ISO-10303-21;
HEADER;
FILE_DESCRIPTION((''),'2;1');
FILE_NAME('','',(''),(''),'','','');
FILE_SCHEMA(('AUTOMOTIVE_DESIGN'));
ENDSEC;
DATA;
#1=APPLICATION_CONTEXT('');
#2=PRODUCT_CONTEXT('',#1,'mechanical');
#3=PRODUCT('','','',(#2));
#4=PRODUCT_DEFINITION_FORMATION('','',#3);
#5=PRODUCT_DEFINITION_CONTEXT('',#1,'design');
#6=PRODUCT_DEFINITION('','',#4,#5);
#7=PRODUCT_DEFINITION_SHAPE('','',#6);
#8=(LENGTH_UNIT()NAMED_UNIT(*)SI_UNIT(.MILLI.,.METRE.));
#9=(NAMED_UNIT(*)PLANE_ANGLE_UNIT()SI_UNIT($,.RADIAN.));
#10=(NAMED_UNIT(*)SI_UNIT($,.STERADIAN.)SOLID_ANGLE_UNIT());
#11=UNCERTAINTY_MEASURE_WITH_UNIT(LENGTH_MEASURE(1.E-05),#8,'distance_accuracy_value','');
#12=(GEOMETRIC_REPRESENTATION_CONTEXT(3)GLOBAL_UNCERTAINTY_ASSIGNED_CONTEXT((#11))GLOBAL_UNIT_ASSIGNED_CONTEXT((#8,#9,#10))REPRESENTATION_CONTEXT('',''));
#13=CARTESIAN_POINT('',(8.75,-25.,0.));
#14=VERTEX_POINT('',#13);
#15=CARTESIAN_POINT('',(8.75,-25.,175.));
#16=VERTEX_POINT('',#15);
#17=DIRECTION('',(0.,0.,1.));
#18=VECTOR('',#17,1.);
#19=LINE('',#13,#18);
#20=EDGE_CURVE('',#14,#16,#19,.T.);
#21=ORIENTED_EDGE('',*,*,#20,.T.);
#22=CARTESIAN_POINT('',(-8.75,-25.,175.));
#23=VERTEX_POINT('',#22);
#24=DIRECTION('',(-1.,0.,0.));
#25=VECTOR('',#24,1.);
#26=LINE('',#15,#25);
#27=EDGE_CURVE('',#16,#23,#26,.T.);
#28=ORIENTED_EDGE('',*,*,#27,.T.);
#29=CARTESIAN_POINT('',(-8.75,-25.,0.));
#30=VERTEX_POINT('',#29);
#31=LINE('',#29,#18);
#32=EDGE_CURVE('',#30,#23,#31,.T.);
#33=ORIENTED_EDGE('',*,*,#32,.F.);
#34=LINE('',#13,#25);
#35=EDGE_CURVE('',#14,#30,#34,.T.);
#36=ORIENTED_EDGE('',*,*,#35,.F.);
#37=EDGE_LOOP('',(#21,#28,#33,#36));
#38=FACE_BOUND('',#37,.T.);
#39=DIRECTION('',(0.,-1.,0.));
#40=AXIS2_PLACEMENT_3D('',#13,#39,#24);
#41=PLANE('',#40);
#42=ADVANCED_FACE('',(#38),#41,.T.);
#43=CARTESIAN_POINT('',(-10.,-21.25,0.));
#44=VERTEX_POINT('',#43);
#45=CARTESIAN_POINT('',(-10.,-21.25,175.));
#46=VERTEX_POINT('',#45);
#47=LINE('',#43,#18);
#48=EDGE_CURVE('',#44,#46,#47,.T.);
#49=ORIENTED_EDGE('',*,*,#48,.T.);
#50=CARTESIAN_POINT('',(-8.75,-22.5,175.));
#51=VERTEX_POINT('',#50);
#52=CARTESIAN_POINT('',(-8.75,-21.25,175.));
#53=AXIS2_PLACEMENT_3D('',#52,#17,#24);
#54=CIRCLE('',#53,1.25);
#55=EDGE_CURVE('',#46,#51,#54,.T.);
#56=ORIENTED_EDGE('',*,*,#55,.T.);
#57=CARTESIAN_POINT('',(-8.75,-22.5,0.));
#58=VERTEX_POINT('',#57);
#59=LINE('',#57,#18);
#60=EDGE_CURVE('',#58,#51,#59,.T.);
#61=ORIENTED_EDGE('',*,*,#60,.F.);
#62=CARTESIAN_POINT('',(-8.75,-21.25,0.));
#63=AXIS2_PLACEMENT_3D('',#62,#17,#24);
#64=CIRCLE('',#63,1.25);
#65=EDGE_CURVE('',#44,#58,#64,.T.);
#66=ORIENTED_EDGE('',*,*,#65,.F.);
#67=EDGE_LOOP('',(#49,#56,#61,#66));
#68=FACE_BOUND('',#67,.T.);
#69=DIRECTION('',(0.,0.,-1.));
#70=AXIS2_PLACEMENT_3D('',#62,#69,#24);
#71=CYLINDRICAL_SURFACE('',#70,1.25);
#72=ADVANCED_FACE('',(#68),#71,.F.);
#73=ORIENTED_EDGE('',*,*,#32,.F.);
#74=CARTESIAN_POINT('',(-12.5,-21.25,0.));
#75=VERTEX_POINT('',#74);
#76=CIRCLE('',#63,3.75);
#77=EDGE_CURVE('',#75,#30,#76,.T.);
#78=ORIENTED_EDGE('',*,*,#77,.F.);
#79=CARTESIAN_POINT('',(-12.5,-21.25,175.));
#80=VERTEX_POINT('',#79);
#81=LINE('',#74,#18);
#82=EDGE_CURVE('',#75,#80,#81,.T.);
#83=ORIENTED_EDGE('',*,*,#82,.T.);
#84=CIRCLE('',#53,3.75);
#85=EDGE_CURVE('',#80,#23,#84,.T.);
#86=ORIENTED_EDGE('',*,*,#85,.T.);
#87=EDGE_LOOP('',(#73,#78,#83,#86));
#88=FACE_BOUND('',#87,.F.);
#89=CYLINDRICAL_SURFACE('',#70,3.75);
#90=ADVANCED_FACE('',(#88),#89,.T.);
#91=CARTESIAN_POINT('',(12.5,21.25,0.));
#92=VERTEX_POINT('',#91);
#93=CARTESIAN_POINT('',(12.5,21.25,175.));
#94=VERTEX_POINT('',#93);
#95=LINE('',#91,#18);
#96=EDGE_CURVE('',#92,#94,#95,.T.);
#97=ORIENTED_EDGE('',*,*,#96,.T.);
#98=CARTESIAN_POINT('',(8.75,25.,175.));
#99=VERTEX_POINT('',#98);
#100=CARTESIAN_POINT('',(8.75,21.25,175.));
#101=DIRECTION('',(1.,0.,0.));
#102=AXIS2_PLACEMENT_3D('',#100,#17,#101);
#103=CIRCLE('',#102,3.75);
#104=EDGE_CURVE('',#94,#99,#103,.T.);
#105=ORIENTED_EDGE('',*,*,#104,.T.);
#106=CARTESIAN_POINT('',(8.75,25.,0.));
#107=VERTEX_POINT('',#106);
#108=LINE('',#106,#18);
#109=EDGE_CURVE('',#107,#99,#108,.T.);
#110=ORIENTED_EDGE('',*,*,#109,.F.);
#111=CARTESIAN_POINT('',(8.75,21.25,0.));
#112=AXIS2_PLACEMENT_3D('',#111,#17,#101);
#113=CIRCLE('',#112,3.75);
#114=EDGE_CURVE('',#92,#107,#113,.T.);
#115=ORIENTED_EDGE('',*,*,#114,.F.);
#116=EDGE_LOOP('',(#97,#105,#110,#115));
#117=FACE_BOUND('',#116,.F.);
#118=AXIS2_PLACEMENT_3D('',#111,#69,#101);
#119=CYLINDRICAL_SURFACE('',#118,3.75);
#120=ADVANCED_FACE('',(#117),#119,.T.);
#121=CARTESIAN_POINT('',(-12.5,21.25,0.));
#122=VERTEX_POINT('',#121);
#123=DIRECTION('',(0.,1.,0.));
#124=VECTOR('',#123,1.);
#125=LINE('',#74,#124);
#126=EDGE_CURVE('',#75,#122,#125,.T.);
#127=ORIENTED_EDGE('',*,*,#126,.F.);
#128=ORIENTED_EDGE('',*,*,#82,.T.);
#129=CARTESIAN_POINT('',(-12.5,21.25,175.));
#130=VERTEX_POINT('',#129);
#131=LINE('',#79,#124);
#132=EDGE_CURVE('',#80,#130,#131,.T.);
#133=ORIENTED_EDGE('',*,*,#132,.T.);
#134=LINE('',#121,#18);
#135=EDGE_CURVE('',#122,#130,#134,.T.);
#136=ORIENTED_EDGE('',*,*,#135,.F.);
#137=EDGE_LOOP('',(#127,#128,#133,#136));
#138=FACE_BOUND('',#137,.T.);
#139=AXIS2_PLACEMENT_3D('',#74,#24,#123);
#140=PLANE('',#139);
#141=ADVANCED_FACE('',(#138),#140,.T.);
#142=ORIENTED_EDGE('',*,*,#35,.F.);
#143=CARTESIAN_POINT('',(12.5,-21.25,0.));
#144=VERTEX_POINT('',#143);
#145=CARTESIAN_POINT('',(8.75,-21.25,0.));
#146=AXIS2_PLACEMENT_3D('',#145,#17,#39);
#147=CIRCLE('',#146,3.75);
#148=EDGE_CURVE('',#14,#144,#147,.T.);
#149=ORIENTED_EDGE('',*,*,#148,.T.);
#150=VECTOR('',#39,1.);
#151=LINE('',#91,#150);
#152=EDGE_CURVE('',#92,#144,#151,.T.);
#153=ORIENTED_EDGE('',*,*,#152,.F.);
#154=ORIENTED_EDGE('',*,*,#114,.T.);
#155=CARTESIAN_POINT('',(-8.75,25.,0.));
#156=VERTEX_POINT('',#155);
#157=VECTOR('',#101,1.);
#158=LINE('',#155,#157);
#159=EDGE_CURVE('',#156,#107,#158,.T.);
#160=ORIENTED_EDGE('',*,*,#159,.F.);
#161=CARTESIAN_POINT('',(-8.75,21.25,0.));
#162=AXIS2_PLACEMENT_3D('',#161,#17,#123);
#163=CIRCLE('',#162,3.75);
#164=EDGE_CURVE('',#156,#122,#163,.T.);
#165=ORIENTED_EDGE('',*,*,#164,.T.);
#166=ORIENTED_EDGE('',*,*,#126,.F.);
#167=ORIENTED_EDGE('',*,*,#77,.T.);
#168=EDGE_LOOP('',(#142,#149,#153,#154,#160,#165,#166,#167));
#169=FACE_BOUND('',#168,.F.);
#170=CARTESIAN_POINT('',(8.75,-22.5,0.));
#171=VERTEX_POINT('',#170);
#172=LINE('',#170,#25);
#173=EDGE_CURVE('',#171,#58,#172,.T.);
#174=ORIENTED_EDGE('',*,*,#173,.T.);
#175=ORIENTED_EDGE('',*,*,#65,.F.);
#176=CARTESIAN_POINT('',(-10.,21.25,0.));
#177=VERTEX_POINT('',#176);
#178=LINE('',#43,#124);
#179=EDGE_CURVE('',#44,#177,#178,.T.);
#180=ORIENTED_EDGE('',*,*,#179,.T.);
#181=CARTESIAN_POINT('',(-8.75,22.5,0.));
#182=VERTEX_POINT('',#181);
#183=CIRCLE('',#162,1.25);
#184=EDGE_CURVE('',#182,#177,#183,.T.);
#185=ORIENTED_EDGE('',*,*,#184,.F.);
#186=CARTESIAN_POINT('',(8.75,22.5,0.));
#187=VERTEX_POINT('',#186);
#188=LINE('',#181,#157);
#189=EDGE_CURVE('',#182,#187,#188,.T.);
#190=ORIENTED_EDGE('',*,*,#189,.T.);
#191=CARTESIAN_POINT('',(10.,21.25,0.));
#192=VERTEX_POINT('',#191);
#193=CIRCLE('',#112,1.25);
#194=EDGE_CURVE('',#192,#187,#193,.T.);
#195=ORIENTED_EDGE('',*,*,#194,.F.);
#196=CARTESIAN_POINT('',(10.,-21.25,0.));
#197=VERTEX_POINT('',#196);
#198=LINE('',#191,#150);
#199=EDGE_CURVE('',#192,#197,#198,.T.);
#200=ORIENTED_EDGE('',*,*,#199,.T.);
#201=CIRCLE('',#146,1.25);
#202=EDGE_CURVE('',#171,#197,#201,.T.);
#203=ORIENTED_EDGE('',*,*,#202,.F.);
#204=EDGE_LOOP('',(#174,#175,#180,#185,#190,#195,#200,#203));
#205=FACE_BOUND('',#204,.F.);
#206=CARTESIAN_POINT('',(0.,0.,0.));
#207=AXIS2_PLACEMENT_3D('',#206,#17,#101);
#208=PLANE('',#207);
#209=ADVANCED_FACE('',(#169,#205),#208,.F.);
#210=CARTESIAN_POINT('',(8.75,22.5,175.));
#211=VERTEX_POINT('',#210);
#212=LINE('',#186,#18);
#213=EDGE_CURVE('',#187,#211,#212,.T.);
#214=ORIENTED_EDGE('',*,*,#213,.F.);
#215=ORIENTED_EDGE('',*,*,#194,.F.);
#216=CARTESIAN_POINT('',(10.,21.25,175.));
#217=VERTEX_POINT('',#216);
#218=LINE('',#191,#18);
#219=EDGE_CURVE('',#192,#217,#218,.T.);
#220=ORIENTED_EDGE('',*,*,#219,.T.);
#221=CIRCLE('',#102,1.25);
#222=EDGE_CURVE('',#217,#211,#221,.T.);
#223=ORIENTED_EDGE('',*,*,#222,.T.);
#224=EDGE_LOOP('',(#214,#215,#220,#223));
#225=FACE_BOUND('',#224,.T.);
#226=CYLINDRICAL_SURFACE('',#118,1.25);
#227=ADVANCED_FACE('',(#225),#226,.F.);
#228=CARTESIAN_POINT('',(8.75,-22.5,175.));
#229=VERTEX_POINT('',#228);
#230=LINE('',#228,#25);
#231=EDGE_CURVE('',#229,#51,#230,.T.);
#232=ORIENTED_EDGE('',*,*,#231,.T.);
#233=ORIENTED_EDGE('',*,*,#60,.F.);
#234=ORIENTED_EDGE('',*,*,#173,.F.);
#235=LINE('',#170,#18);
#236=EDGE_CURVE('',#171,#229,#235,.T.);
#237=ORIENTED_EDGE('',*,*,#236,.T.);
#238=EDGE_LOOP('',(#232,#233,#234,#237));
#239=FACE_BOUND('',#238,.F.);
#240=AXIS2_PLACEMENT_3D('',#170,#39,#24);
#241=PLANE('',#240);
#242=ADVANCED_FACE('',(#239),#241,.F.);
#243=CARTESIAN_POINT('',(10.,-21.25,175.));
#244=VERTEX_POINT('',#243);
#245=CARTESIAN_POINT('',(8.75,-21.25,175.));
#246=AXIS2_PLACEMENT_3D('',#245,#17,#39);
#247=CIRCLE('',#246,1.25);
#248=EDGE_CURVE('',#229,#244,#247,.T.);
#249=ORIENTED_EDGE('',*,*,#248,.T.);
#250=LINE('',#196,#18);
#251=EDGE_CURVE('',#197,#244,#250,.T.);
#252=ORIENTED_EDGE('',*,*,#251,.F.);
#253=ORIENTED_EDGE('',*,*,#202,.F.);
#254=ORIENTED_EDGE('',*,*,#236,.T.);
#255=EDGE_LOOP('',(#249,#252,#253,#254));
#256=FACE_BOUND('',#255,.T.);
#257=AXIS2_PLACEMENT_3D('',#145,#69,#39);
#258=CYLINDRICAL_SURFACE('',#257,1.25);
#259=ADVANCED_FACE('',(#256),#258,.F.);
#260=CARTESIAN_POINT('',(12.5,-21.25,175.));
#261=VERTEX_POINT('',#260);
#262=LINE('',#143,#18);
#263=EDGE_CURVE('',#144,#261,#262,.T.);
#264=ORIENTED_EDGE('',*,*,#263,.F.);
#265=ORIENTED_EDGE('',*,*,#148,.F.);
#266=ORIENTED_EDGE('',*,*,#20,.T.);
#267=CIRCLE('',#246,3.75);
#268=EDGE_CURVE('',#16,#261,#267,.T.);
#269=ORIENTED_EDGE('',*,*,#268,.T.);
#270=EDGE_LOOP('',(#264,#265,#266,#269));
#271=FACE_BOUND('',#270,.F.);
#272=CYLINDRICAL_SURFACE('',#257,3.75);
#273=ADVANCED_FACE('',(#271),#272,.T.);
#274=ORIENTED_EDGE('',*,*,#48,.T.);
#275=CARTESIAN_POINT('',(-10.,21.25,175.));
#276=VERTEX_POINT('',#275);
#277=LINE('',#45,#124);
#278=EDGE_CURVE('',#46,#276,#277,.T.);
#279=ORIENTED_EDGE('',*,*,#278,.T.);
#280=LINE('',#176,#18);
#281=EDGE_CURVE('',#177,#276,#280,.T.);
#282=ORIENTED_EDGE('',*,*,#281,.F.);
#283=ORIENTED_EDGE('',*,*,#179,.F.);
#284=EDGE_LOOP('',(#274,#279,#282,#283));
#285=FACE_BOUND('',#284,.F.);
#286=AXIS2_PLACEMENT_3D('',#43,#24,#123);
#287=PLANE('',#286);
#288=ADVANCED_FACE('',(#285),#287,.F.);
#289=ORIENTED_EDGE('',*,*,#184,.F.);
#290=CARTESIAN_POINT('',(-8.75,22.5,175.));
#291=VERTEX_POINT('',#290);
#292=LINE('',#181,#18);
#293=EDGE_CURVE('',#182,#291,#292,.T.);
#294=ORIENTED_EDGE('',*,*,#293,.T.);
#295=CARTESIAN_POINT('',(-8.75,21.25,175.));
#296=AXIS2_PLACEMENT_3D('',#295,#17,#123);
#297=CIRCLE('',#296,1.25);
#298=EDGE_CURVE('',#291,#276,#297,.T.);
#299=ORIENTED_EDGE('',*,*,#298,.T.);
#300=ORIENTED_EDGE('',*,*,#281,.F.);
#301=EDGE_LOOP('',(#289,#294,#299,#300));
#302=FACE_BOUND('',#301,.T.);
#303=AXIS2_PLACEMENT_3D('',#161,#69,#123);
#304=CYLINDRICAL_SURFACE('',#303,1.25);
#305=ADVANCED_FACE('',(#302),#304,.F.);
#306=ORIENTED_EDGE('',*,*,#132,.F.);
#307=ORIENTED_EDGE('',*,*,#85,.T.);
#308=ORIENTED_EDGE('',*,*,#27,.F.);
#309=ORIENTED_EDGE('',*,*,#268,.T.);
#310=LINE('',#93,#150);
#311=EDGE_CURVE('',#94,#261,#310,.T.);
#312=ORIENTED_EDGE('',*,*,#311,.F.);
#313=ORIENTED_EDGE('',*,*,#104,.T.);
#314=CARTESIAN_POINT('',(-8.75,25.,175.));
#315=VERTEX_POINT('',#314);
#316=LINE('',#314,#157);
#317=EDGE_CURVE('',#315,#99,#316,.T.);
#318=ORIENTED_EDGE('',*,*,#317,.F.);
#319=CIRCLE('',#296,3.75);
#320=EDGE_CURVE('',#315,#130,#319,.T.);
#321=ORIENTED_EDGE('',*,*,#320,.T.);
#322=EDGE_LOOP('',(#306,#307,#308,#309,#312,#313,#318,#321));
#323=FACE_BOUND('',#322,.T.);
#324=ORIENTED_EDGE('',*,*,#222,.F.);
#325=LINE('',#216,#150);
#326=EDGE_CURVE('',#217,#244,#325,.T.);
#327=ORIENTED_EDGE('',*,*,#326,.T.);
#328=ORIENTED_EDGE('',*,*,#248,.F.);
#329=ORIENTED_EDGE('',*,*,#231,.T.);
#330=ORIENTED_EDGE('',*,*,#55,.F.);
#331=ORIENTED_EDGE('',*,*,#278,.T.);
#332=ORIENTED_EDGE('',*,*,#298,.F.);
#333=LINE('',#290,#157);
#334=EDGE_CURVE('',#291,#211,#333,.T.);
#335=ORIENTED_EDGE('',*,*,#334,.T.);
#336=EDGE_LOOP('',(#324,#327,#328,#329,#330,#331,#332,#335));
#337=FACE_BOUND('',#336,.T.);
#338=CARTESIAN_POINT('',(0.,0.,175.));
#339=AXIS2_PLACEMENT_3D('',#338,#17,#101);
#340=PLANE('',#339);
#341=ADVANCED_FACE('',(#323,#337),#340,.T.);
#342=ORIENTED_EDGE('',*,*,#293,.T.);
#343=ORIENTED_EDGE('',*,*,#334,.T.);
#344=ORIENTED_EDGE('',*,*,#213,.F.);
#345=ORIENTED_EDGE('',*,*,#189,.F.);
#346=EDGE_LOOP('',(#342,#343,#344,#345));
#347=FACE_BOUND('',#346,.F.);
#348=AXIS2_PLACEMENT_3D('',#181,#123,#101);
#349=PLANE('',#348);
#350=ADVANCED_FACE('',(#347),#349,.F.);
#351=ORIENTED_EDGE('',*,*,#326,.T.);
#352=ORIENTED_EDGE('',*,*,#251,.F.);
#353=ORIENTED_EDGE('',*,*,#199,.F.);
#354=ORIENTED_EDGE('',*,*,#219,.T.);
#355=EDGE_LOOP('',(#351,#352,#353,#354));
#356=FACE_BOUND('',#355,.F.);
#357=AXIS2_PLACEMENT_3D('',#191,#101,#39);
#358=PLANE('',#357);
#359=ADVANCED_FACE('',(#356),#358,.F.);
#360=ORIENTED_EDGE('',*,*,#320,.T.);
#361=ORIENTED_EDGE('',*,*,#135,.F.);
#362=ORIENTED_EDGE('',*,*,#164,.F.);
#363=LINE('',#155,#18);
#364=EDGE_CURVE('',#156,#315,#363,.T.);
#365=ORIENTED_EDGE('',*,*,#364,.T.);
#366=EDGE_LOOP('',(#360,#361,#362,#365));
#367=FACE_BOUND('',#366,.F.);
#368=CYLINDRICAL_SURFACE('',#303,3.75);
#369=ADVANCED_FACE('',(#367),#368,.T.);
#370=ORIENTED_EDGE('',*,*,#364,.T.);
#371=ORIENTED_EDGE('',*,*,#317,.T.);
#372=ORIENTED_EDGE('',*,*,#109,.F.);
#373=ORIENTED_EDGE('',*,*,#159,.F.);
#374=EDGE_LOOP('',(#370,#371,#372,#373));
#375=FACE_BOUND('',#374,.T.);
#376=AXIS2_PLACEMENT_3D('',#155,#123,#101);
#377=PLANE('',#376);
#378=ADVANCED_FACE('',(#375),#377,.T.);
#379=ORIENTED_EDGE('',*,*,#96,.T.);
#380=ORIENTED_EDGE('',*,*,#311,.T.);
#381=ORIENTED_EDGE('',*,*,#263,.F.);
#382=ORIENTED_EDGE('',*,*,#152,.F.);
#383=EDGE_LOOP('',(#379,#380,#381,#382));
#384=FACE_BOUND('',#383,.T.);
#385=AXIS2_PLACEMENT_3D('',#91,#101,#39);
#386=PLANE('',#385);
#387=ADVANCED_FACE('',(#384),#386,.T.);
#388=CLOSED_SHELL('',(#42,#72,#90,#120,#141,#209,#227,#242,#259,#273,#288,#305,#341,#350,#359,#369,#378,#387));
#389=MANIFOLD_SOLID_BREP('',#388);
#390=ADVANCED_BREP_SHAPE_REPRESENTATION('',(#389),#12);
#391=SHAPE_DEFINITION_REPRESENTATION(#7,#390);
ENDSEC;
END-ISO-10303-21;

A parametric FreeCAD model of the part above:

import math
import FreeCAD as App
import Part
import Sketcher

doc = App.newDocument("Part")
params = doc.addObject("Spreadsheet::Sheet", "Params")
for row, (alias, value) in enumerate([
    ("sketch1_radius", "3.75 mm"),
    ("sketch1_radius2", "1.25 mm"),
    ("pad1_length", "175 mm"),
], start=1):
    params.set(f"A{row}", alias)
    params.set(f"B{row}", "=" + value)
    params.setAlias(f"B{row}", alias)

body = doc.addObject("PartDesign::Body", "Body")

# Sketch on XY plane
sketch1 = body.newObject("Sketcher::SketchObject", "Sketch")
sketch1.AttachmentSupport = (doc.getObject("XY_Plane"), [""])
sketch1.MapMode = "FlatFace"
sketch1.addGeometry([
    Part.LineSegment(App.Vector(-12.5, 21.25, 0), App.Vector(-12.5, -21.25, 0)),  # 0
    Part.ArcOfCircle(Part.Circle(App.Vector(-8.75, -21.25, 0), App.Vector(0, 0, 1), 3.75), math.radians(180), math.radians(270)),  # 1
    Part.LineSegment(App.Vector(-8.75, -25, 0), App.Vector(8.75, -25, 0)),  # 2
    Part.ArcOfCircle(Part.Circle(App.Vector(8.75, -21.25, 0), App.Vector(0, 0, 1), 3.75), math.radians(-90), math.radians(0)),  # 3
    Part.LineSegment(App.Vector(12.5, -21.25, 0), App.Vector(12.5, 21.25, 0)),  # 4
    Part.ArcOfCircle(Part.Circle(App.Vector(8.75, 21.25, 0), App.Vector(0, 0, 1), 3.75), math.radians(0), math.radians(90)),  # 5
    Part.LineSegment(App.Vector(8.75, 25, 0), App.Vector(-8.75, 25, 0)),  # 6
    Part.ArcOfCircle(Part.Circle(App.Vector(-8.75, 21.25, 0), App.Vector(0, 0, 1), 3.75), math.radians(90), math.radians(180)),  # 7
    Part.ArcOfCircle(Part.Circle(App.Vector(-8.75, 21.25, 0), App.Vector(0, 0, 1), 1.25), math.radians(90), math.radians(180)),  # 8
    Part.LineSegment(App.Vector(-8.75, 22.5, 0), App.Vector(8.75, 22.5, 0)),  # 9
    Part.ArcOfCircle(Part.Circle(App.Vector(8.75, 21.25, 0), App.Vector(0, 0, 1), 1.25), math.radians(0), math.radians(90)),  # 10
    Part.LineSegment(App.Vector(10, 21.25, 0), App.Vector(10, -21.25, 0)),  # 11
    Part.ArcOfCircle(Part.Circle(App.Vector(8.75, -21.25, 0), App.Vector(0, 0, 1), 1.25), math.radians(-90), math.radians(0)),  # 12
    Part.LineSegment(App.Vector(8.75, -22.5, 0), App.Vector(-8.75, -22.5, 0)),  # 13
    Part.ArcOfCircle(Part.Circle(App.Vector(-8.75, -21.25, 0), App.Vector(0, 0, 1), 1.25), math.radians(180), math.radians(270)),  # 14
    Part.LineSegment(App.Vector(-10, -21.25, 0), App.Vector(-10, 21.25, 0)),  # 15
], False)
sketch1.addConstraint([
    Sketcher.Constraint("Tangent", 0, 2, 1, 1),
    Sketcher.Constraint("Tangent", 1, 2, 2, 1),
    Sketcher.Constraint("Tangent", 2, 2, 3, 1),
    Sketcher.Constraint("Tangent", 3, 2, 4, 1),
    Sketcher.Constraint("Tangent", 4, 2, 5, 1),
    Sketcher.Constraint("Tangent", 5, 2, 6, 1),
    Sketcher.Constraint("Tangent", 6, 2, 7, 1),
    Sketcher.Constraint("Tangent", 7, 2, 0, 1),
    Sketcher.Constraint("Tangent", 8, 1, 9, 1),
    Sketcher.Constraint("Tangent", 9, 2, 10, 2),
    Sketcher.Constraint("Tangent", 10, 1, 11, 1),
    Sketcher.Constraint("Tangent", 11, 2, 12, 2),
    Sketcher.Constraint("Tangent", 12, 1, 13, 1),
    Sketcher.Constraint("Tangent", 13, 2, 14, 2),
    Sketcher.Constraint("Tangent", 14, 1, 15, 1),
    Sketcher.Constraint("Tangent", 15, 2, 8, 2),
    Sketcher.Constraint("Vertical", 0),
    Sketcher.Constraint("Horizontal", 2),
    Sketcher.Constraint("Vertical", 4),
    Sketcher.Constraint("Horizontal", 6),
    Sketcher.Constraint("Horizontal", 9),
    Sketcher.Constraint("Vertical", 11),
    Sketcher.Constraint("Horizontal", 13),
    Sketcher.Constraint("Vertical", 15),
    Sketcher.Constraint("Coincident", 8, 3, 7, 3),
    Sketcher.Constraint("Coincident", 10, 3, 5, 3),
    Sketcher.Constraint("Coincident", 12, 3, 3, 3),
    Sketcher.Constraint("Equal", 1, 3),
    Sketcher.Constraint("Equal", 3, 5),
    Sketcher.Constraint("Equal", 5, 7),
    Sketcher.Constraint("Equal", 12, 14),
    Sketcher.Constraint("Symmetric", 1, 3, 5, 3, -1, 1),
    Sketcher.Constraint("Radius", 1, 3.75),
    Sketcher.Constraint("Radius", 8, 1.25),
    Sketcher.Constraint("DistanceY", 1, 2, -1, 1, 25.0),
    Sketcher.Constraint("DistanceX", 0, 2, -1, 1, 12.5),
])
sketch1.setExpression("Constraints[32]", "Params.sketch1_radius")
sketch1.setExpression("Constraints[33]", "Params.sketch1_radius2")
pad1 = body.newObject("PartDesign::Pad", "Pad")
pad1.Profile = sketch1
pad1.setExpression("Length", "Params.pad1_length")

doc.recompute()
